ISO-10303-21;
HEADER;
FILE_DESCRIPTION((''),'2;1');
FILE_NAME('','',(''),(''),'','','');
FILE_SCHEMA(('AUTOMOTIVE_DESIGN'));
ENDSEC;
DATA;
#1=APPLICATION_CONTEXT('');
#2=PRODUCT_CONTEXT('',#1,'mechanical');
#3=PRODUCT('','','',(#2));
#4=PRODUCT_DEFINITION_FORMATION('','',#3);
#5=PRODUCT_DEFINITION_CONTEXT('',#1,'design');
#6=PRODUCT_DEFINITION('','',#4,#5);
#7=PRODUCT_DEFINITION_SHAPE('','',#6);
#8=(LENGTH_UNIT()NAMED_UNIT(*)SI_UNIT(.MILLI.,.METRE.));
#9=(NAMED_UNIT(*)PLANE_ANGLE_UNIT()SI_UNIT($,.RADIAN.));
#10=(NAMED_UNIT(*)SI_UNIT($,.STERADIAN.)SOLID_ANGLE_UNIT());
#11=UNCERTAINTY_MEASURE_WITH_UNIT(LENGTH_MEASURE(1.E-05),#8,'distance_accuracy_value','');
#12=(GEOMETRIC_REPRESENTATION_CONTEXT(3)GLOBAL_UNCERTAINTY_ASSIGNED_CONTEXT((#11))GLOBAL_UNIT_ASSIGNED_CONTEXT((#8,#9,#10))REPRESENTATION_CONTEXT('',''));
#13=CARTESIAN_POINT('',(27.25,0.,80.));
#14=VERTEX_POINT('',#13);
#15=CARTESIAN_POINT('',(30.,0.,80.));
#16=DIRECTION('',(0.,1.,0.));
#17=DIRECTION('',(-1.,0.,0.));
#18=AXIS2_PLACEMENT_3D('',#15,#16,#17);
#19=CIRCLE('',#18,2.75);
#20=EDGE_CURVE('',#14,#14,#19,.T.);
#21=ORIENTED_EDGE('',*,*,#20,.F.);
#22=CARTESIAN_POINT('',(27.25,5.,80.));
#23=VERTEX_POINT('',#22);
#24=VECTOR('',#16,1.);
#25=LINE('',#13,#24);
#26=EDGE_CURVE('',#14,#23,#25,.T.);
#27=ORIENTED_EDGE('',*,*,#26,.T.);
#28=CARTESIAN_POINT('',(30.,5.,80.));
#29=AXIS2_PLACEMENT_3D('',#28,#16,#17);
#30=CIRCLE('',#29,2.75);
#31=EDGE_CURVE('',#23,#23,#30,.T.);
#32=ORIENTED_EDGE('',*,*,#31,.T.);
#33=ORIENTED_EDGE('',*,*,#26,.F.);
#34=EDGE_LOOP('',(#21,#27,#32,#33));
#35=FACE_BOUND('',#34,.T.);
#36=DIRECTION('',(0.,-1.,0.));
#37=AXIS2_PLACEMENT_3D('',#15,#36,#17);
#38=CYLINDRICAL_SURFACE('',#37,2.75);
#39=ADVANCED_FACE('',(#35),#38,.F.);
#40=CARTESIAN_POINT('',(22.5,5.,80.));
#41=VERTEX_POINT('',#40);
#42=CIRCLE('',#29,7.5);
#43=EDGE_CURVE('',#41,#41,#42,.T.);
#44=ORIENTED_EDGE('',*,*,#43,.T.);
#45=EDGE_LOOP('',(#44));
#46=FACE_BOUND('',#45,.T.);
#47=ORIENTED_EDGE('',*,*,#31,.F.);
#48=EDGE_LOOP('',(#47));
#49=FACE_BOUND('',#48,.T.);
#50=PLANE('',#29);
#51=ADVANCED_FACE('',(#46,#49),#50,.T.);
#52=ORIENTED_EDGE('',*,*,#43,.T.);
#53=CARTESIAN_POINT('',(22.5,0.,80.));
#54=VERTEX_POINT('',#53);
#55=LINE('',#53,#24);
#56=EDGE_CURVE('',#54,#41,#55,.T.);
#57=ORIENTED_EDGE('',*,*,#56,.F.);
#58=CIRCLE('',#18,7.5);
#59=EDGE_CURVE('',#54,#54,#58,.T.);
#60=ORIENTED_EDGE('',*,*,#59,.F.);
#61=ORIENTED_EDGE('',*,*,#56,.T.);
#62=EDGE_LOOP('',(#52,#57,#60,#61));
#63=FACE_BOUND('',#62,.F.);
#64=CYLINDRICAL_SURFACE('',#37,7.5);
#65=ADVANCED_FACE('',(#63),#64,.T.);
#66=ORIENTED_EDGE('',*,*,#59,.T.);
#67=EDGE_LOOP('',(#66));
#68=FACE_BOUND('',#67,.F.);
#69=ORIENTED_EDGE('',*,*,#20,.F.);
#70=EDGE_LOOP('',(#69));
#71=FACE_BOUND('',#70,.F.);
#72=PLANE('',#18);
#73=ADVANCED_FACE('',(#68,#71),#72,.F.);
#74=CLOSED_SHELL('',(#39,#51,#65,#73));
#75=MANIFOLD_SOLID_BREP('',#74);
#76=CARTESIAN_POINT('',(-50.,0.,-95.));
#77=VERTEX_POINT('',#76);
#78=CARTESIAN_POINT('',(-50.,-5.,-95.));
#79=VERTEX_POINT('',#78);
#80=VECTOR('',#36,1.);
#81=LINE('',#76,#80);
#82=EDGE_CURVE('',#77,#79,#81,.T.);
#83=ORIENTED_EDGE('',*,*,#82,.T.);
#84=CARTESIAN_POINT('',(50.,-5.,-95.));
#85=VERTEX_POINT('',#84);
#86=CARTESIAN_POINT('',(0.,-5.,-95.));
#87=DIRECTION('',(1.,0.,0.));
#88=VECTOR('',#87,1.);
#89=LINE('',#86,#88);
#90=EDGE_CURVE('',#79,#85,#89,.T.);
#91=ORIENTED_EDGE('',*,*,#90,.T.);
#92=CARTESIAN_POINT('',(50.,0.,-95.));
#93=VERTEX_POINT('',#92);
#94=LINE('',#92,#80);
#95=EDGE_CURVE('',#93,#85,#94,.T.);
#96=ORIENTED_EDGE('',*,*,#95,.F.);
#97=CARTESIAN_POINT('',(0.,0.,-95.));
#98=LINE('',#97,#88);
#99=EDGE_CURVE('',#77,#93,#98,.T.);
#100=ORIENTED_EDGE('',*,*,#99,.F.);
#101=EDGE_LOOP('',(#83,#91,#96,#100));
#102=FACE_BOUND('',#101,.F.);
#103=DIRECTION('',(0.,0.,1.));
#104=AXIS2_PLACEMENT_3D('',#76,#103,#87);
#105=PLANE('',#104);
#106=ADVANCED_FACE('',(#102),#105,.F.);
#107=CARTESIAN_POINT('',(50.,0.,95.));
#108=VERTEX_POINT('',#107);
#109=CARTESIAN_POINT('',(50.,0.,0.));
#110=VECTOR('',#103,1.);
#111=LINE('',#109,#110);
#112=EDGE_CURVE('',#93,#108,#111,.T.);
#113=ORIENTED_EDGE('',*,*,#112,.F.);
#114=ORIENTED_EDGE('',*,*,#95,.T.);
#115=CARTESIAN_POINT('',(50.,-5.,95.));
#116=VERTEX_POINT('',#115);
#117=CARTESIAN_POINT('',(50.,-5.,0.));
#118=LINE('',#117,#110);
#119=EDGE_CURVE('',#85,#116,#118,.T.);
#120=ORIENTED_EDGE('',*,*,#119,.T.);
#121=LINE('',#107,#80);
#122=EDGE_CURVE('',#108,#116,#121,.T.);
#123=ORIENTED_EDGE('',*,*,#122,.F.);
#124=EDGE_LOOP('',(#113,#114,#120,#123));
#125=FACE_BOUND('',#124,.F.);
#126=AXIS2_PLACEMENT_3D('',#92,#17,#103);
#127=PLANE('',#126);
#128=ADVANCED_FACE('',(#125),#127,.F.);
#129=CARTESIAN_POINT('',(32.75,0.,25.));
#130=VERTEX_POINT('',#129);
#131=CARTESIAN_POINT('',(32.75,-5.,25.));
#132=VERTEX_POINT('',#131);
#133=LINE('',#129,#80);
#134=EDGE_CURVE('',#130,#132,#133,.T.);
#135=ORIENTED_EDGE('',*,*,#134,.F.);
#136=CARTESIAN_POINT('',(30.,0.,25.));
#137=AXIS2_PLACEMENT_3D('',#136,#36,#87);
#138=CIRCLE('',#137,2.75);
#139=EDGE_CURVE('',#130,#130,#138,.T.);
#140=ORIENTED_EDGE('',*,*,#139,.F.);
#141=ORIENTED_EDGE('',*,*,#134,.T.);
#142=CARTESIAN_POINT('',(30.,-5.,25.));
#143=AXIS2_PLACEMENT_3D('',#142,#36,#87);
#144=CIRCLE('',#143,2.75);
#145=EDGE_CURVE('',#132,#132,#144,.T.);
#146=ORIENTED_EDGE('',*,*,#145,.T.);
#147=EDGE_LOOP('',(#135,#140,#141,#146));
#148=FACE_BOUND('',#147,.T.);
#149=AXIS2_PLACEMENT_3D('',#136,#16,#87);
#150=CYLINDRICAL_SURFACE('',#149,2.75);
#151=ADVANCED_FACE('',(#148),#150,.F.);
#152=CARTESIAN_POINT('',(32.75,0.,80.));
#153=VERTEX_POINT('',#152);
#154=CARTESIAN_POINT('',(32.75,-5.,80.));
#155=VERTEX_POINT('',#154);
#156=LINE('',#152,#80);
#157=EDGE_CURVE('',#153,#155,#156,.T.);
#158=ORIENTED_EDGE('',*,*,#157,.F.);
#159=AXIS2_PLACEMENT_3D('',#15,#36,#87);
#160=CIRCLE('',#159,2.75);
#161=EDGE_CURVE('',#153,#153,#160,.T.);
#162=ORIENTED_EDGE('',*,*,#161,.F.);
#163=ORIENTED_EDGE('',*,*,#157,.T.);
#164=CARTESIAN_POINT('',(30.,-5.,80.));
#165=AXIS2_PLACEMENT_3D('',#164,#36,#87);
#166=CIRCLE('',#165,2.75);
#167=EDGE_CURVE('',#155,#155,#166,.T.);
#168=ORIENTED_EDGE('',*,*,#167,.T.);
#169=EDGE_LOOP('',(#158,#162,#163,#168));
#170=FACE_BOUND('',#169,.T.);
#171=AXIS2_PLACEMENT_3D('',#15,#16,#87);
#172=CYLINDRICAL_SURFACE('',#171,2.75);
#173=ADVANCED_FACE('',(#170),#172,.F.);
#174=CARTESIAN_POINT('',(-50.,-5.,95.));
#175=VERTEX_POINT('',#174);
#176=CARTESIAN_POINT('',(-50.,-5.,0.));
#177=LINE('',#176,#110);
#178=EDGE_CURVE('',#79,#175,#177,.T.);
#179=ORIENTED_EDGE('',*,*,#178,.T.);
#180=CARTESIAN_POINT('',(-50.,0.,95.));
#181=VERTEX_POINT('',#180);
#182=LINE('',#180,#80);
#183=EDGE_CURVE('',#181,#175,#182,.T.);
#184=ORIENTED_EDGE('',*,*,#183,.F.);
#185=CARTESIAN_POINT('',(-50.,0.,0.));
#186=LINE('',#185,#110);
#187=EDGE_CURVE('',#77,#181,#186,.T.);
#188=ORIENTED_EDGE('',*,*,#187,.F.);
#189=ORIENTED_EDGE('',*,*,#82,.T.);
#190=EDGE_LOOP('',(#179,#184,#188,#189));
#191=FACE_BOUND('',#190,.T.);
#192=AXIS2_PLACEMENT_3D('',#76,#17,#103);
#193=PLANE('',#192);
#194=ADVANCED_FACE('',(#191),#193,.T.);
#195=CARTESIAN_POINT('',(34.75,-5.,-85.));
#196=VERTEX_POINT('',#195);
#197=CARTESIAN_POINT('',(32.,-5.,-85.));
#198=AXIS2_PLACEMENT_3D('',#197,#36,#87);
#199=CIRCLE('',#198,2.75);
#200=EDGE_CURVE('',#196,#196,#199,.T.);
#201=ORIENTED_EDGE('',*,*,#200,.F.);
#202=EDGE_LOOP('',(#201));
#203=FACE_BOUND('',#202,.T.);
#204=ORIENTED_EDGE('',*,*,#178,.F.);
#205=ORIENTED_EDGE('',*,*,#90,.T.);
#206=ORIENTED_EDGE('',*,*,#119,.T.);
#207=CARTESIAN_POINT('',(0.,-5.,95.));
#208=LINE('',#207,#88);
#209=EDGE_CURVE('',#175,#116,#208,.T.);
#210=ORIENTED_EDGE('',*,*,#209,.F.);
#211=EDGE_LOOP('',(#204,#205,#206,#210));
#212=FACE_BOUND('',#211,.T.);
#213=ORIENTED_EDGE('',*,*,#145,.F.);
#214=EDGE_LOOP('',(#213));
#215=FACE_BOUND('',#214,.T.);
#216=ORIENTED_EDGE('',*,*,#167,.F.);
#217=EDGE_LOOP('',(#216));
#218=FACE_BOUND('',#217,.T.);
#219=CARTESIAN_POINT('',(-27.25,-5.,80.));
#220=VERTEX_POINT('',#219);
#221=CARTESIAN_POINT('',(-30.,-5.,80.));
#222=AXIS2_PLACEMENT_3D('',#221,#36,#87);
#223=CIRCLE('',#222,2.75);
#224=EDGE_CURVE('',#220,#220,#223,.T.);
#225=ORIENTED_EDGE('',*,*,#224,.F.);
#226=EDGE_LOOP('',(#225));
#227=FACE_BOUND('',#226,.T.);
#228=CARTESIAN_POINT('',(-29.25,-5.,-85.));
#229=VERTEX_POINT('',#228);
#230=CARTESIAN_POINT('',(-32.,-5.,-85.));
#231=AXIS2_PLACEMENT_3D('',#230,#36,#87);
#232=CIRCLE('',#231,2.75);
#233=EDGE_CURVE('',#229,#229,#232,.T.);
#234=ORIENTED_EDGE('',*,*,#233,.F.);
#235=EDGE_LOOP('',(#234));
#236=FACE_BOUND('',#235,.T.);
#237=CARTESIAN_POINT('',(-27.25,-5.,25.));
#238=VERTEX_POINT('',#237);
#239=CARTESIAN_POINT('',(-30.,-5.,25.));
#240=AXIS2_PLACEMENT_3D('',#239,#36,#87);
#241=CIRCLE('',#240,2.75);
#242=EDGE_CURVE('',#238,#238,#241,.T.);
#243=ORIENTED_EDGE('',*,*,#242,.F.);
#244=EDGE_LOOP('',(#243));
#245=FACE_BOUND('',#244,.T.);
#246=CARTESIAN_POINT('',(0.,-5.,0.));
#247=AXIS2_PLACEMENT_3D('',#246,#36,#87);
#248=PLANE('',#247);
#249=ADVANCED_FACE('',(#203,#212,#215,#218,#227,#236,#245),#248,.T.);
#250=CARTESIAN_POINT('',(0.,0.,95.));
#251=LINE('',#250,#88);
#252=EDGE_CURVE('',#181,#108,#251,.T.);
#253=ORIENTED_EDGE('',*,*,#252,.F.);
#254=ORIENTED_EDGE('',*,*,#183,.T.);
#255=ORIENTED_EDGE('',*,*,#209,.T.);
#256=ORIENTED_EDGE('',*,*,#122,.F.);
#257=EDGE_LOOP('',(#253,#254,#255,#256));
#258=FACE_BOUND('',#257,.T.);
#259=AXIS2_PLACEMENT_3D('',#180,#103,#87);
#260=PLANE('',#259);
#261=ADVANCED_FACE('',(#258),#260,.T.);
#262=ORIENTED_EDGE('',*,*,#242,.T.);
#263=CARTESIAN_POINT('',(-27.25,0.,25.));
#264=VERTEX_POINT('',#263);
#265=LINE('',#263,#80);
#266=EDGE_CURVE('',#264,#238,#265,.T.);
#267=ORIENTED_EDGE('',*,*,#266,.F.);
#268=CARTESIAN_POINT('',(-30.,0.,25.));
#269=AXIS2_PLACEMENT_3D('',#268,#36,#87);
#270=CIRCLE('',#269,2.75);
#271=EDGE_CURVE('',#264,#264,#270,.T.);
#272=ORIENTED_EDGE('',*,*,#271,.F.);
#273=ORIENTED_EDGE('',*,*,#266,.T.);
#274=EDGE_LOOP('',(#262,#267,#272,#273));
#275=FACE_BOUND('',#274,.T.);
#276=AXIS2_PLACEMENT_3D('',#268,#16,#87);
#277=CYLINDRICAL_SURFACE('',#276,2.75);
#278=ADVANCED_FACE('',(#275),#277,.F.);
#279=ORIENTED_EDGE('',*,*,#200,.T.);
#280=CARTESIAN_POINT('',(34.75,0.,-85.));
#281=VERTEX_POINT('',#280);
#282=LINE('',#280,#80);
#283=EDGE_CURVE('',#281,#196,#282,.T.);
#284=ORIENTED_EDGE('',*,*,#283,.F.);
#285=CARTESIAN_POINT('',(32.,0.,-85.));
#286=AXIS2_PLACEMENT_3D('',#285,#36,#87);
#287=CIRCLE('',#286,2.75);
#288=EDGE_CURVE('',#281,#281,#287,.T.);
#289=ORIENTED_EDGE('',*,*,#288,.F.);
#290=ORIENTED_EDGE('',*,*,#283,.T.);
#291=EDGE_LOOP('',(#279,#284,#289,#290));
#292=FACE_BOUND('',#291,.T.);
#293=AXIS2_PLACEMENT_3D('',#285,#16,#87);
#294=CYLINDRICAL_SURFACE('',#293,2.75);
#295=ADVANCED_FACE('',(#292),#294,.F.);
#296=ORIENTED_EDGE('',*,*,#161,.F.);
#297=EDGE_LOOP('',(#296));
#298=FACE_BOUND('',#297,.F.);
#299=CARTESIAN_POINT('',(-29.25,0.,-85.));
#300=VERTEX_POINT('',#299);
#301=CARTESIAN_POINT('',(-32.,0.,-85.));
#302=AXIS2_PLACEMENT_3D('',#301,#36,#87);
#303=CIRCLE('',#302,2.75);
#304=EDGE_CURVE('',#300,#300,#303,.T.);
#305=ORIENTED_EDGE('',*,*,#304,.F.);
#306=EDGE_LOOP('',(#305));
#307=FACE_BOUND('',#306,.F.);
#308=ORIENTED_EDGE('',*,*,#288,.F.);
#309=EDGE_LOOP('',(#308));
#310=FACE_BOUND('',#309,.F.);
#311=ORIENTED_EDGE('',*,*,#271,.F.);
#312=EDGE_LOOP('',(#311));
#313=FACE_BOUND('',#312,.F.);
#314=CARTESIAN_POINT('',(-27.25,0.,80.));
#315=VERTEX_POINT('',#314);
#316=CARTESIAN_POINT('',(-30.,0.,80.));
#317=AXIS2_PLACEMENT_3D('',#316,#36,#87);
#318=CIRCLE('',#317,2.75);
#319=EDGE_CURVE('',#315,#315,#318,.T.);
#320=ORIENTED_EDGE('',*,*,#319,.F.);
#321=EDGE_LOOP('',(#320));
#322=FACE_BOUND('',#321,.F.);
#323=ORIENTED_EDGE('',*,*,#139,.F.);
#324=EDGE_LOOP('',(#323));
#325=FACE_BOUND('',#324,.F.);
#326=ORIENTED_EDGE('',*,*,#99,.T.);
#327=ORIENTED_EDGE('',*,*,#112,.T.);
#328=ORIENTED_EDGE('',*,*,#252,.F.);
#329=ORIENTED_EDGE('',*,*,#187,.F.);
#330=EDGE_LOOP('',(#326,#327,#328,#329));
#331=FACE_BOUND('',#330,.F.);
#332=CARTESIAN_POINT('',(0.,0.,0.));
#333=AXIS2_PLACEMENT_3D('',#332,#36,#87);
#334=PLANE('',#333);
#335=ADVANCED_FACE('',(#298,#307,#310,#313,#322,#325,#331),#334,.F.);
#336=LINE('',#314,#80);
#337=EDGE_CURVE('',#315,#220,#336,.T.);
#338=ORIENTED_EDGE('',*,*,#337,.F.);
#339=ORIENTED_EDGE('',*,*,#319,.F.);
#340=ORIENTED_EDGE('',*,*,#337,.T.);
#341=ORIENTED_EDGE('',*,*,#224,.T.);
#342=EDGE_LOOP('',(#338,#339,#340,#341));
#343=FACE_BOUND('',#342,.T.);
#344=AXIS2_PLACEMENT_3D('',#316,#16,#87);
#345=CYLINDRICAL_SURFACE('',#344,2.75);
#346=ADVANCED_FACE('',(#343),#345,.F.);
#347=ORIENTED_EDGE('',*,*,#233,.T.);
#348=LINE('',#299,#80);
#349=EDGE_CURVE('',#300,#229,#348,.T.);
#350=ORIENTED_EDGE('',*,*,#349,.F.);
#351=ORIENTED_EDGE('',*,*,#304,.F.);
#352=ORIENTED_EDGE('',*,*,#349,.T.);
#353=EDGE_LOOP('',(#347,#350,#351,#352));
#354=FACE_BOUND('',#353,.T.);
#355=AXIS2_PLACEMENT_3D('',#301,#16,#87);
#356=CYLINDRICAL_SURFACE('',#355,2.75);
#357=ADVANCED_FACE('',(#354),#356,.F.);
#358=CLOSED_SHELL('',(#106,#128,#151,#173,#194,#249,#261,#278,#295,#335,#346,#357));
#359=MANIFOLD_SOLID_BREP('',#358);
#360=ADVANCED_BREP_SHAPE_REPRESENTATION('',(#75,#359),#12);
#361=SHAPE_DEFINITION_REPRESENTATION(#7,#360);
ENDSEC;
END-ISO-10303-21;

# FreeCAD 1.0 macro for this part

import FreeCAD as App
import Part
import Sketcher
from FreeCAD import Vector


def add_polygon(sketch, points):
    """Adds a closed chain of lines whose ends are joined by coincident constraints."""
    first, n = sketch.GeometryCount, len(points)
    for a, b in zip(points, points[1:] + points[:1]):
        sketch.addGeometry(Part.LineSegment(App.Vector(*a, 0), App.Vector(*b, 0)), False)
    for i in range(n):
        sketch.addConstraint(Sketcher.Constraint("Coincident", first + i, 2, first + (i + 1) % n, 1))

doc = App.newDocument("Part")
body = doc.addObject("PartDesign::Body", "Body")

sketch1 = body.newObject("Sketcher::SketchObject", "Sketch")
sketch1.AttachmentSupport = (doc.getObject("XZ_Plane"), [""])
sketch1.MapMode = "FlatFace"
add_polygon(sketch1, [(-50, 95), (-50, -95), (50, -95), (50, 95)])
sketch1.addGeometry(Part.Circle(Vector(-32, -85, 0), Vector(0, 0, 1), 2.75), False)
sketch1.addGeometry(Part.Circle(Vector(32, -85, 0), Vector(0, 0, 1), 2.75), False)
sketch1.addGeometry(Part.Circle(Vector(-30, 25, 0), Vector(0, 0, 1), 2.75), False)
sketch1.addGeometry(Part.Circle(Vector(-30, 80, 0), Vector(0, 0, 1), 2.75), False)
sketch1.addGeometry(Part.Circle(Vector(30, 25, 0), Vector(0, 0, 1), 2.75), False)
sketch1.addGeometry(Part.Circle(Vector(30, 80, 0), Vector(0, 0, 1), 2.75), False)
sketch1.addConstraint(Sketcher.Constraint("Vertical", 0))
sketch1.addConstraint(Sketcher.Constraint("Horizontal", 1))
sketch1.addConstraint(Sketcher.Constraint("Vertical", 2))
sketch1.addConstraint(Sketcher.Constraint("Horizontal", 3))
sketch1.addConstraint(Sketcher.Constraint("Equal", 4, 5))
sketch1.addConstraint(Sketcher.Constraint("Equal", 5, 6))
sketch1.addConstraint(Sketcher.Constraint("Equal", 6, 7))
sketch1.addConstraint(Sketcher.Constraint("Equal", 7, 8))
sketch1.addConstraint(Sketcher.Constraint("Equal", 8, 9))
sketch1.addConstraint(Sketcher.Constraint("Symmetric", 0, 2, 2, 2, -1, 1))
sketch1.addConstraint(Sketcher.Constraint("Symmetric", 4, 3, 5, 3, -2))
sketch1.addConstraint(Sketcher.Constraint("Symmetric", 6, 3, 8, 3, -2))
sketch1.addConstraint(Sketcher.Constraint("Symmetric", 7, 3, 9, 3, -2))
sketch1.addConstraint(Sketcher.Constraint("Vertical", 6, 3, 7, 3))
sketch1.addConstraint(Sketcher.Constraint("Diameter", 4, 5.5))
sketch1.addConstraint(Sketcher.Constraint("DistanceX", 1, 1, 1, 2, 100.0))
sketch1.addConstraint(Sketcher.Constraint("DistanceY", 0, 2, 0, 1, 190.0))
sketch1.addConstraint(Sketcher.Constraint("DistanceX", 4, 3, -1, 1, 32.0))
sketch1.addConstraint(Sketcher.Constraint("DistanceY", 4, 3, -1, 1, 85.0))
sketch1.addConstraint(Sketcher.Constraint("DistanceX", 6, 3, -1, 1, 30.0))
sketch1.addConstraint(Sketcher.Constraint("DistanceY", -1, 1, 6, 3, 25.0))
sketch1.addConstraint(Sketcher.Constraint("DistanceY", -1, 1, 7, 3, 80.0))
pad1 = body.newObject("PartDesign::Pad", "Pad")
pad1.Profile = sketch1
pad1.Length = 5
body2 = doc.addObject("PartDesign::Body", "Body001")

sketch2 = body2.newObject("Sketcher::SketchObject", "Sketch001")
sketch2.AttachmentSupport = (doc.getObject("XZ_Plane001"), [""])
sketch2.MapMode = "FlatFace"
sketch2.addGeometry(Part.Circle(Vector(30, 80, 0), Vector(0, 0, 1), 7.5), False)
sketch2.addGeometry(Part.Circle(Vector(30, 80, 0), Vector(0, 0, 1), 2.75), False)
sketch2.addConstraint(Sketcher.Constraint("Coincident", 1, 3, 0, 3))
sketch2.addConstraint(Sketcher.Constraint("Diameter", 0, 15.0))
sketch2.addConstraint(Sketcher.Constraint("Diameter", 1, 5.5))
sketch2.addConstraint(Sketcher.Constraint("DistanceX", -1, 1, 0, 3, 30.0))
sketch2.addConstraint(Sketcher.Constraint("DistanceY", -1, 1, 0, 3, 80.0))
pad2 = body2.newObject("PartDesign::Pad", "Pad001")
pad2.Profile = sketch2
pad2.Length = 5
pad2.Reversed = True

doc.recompute()
